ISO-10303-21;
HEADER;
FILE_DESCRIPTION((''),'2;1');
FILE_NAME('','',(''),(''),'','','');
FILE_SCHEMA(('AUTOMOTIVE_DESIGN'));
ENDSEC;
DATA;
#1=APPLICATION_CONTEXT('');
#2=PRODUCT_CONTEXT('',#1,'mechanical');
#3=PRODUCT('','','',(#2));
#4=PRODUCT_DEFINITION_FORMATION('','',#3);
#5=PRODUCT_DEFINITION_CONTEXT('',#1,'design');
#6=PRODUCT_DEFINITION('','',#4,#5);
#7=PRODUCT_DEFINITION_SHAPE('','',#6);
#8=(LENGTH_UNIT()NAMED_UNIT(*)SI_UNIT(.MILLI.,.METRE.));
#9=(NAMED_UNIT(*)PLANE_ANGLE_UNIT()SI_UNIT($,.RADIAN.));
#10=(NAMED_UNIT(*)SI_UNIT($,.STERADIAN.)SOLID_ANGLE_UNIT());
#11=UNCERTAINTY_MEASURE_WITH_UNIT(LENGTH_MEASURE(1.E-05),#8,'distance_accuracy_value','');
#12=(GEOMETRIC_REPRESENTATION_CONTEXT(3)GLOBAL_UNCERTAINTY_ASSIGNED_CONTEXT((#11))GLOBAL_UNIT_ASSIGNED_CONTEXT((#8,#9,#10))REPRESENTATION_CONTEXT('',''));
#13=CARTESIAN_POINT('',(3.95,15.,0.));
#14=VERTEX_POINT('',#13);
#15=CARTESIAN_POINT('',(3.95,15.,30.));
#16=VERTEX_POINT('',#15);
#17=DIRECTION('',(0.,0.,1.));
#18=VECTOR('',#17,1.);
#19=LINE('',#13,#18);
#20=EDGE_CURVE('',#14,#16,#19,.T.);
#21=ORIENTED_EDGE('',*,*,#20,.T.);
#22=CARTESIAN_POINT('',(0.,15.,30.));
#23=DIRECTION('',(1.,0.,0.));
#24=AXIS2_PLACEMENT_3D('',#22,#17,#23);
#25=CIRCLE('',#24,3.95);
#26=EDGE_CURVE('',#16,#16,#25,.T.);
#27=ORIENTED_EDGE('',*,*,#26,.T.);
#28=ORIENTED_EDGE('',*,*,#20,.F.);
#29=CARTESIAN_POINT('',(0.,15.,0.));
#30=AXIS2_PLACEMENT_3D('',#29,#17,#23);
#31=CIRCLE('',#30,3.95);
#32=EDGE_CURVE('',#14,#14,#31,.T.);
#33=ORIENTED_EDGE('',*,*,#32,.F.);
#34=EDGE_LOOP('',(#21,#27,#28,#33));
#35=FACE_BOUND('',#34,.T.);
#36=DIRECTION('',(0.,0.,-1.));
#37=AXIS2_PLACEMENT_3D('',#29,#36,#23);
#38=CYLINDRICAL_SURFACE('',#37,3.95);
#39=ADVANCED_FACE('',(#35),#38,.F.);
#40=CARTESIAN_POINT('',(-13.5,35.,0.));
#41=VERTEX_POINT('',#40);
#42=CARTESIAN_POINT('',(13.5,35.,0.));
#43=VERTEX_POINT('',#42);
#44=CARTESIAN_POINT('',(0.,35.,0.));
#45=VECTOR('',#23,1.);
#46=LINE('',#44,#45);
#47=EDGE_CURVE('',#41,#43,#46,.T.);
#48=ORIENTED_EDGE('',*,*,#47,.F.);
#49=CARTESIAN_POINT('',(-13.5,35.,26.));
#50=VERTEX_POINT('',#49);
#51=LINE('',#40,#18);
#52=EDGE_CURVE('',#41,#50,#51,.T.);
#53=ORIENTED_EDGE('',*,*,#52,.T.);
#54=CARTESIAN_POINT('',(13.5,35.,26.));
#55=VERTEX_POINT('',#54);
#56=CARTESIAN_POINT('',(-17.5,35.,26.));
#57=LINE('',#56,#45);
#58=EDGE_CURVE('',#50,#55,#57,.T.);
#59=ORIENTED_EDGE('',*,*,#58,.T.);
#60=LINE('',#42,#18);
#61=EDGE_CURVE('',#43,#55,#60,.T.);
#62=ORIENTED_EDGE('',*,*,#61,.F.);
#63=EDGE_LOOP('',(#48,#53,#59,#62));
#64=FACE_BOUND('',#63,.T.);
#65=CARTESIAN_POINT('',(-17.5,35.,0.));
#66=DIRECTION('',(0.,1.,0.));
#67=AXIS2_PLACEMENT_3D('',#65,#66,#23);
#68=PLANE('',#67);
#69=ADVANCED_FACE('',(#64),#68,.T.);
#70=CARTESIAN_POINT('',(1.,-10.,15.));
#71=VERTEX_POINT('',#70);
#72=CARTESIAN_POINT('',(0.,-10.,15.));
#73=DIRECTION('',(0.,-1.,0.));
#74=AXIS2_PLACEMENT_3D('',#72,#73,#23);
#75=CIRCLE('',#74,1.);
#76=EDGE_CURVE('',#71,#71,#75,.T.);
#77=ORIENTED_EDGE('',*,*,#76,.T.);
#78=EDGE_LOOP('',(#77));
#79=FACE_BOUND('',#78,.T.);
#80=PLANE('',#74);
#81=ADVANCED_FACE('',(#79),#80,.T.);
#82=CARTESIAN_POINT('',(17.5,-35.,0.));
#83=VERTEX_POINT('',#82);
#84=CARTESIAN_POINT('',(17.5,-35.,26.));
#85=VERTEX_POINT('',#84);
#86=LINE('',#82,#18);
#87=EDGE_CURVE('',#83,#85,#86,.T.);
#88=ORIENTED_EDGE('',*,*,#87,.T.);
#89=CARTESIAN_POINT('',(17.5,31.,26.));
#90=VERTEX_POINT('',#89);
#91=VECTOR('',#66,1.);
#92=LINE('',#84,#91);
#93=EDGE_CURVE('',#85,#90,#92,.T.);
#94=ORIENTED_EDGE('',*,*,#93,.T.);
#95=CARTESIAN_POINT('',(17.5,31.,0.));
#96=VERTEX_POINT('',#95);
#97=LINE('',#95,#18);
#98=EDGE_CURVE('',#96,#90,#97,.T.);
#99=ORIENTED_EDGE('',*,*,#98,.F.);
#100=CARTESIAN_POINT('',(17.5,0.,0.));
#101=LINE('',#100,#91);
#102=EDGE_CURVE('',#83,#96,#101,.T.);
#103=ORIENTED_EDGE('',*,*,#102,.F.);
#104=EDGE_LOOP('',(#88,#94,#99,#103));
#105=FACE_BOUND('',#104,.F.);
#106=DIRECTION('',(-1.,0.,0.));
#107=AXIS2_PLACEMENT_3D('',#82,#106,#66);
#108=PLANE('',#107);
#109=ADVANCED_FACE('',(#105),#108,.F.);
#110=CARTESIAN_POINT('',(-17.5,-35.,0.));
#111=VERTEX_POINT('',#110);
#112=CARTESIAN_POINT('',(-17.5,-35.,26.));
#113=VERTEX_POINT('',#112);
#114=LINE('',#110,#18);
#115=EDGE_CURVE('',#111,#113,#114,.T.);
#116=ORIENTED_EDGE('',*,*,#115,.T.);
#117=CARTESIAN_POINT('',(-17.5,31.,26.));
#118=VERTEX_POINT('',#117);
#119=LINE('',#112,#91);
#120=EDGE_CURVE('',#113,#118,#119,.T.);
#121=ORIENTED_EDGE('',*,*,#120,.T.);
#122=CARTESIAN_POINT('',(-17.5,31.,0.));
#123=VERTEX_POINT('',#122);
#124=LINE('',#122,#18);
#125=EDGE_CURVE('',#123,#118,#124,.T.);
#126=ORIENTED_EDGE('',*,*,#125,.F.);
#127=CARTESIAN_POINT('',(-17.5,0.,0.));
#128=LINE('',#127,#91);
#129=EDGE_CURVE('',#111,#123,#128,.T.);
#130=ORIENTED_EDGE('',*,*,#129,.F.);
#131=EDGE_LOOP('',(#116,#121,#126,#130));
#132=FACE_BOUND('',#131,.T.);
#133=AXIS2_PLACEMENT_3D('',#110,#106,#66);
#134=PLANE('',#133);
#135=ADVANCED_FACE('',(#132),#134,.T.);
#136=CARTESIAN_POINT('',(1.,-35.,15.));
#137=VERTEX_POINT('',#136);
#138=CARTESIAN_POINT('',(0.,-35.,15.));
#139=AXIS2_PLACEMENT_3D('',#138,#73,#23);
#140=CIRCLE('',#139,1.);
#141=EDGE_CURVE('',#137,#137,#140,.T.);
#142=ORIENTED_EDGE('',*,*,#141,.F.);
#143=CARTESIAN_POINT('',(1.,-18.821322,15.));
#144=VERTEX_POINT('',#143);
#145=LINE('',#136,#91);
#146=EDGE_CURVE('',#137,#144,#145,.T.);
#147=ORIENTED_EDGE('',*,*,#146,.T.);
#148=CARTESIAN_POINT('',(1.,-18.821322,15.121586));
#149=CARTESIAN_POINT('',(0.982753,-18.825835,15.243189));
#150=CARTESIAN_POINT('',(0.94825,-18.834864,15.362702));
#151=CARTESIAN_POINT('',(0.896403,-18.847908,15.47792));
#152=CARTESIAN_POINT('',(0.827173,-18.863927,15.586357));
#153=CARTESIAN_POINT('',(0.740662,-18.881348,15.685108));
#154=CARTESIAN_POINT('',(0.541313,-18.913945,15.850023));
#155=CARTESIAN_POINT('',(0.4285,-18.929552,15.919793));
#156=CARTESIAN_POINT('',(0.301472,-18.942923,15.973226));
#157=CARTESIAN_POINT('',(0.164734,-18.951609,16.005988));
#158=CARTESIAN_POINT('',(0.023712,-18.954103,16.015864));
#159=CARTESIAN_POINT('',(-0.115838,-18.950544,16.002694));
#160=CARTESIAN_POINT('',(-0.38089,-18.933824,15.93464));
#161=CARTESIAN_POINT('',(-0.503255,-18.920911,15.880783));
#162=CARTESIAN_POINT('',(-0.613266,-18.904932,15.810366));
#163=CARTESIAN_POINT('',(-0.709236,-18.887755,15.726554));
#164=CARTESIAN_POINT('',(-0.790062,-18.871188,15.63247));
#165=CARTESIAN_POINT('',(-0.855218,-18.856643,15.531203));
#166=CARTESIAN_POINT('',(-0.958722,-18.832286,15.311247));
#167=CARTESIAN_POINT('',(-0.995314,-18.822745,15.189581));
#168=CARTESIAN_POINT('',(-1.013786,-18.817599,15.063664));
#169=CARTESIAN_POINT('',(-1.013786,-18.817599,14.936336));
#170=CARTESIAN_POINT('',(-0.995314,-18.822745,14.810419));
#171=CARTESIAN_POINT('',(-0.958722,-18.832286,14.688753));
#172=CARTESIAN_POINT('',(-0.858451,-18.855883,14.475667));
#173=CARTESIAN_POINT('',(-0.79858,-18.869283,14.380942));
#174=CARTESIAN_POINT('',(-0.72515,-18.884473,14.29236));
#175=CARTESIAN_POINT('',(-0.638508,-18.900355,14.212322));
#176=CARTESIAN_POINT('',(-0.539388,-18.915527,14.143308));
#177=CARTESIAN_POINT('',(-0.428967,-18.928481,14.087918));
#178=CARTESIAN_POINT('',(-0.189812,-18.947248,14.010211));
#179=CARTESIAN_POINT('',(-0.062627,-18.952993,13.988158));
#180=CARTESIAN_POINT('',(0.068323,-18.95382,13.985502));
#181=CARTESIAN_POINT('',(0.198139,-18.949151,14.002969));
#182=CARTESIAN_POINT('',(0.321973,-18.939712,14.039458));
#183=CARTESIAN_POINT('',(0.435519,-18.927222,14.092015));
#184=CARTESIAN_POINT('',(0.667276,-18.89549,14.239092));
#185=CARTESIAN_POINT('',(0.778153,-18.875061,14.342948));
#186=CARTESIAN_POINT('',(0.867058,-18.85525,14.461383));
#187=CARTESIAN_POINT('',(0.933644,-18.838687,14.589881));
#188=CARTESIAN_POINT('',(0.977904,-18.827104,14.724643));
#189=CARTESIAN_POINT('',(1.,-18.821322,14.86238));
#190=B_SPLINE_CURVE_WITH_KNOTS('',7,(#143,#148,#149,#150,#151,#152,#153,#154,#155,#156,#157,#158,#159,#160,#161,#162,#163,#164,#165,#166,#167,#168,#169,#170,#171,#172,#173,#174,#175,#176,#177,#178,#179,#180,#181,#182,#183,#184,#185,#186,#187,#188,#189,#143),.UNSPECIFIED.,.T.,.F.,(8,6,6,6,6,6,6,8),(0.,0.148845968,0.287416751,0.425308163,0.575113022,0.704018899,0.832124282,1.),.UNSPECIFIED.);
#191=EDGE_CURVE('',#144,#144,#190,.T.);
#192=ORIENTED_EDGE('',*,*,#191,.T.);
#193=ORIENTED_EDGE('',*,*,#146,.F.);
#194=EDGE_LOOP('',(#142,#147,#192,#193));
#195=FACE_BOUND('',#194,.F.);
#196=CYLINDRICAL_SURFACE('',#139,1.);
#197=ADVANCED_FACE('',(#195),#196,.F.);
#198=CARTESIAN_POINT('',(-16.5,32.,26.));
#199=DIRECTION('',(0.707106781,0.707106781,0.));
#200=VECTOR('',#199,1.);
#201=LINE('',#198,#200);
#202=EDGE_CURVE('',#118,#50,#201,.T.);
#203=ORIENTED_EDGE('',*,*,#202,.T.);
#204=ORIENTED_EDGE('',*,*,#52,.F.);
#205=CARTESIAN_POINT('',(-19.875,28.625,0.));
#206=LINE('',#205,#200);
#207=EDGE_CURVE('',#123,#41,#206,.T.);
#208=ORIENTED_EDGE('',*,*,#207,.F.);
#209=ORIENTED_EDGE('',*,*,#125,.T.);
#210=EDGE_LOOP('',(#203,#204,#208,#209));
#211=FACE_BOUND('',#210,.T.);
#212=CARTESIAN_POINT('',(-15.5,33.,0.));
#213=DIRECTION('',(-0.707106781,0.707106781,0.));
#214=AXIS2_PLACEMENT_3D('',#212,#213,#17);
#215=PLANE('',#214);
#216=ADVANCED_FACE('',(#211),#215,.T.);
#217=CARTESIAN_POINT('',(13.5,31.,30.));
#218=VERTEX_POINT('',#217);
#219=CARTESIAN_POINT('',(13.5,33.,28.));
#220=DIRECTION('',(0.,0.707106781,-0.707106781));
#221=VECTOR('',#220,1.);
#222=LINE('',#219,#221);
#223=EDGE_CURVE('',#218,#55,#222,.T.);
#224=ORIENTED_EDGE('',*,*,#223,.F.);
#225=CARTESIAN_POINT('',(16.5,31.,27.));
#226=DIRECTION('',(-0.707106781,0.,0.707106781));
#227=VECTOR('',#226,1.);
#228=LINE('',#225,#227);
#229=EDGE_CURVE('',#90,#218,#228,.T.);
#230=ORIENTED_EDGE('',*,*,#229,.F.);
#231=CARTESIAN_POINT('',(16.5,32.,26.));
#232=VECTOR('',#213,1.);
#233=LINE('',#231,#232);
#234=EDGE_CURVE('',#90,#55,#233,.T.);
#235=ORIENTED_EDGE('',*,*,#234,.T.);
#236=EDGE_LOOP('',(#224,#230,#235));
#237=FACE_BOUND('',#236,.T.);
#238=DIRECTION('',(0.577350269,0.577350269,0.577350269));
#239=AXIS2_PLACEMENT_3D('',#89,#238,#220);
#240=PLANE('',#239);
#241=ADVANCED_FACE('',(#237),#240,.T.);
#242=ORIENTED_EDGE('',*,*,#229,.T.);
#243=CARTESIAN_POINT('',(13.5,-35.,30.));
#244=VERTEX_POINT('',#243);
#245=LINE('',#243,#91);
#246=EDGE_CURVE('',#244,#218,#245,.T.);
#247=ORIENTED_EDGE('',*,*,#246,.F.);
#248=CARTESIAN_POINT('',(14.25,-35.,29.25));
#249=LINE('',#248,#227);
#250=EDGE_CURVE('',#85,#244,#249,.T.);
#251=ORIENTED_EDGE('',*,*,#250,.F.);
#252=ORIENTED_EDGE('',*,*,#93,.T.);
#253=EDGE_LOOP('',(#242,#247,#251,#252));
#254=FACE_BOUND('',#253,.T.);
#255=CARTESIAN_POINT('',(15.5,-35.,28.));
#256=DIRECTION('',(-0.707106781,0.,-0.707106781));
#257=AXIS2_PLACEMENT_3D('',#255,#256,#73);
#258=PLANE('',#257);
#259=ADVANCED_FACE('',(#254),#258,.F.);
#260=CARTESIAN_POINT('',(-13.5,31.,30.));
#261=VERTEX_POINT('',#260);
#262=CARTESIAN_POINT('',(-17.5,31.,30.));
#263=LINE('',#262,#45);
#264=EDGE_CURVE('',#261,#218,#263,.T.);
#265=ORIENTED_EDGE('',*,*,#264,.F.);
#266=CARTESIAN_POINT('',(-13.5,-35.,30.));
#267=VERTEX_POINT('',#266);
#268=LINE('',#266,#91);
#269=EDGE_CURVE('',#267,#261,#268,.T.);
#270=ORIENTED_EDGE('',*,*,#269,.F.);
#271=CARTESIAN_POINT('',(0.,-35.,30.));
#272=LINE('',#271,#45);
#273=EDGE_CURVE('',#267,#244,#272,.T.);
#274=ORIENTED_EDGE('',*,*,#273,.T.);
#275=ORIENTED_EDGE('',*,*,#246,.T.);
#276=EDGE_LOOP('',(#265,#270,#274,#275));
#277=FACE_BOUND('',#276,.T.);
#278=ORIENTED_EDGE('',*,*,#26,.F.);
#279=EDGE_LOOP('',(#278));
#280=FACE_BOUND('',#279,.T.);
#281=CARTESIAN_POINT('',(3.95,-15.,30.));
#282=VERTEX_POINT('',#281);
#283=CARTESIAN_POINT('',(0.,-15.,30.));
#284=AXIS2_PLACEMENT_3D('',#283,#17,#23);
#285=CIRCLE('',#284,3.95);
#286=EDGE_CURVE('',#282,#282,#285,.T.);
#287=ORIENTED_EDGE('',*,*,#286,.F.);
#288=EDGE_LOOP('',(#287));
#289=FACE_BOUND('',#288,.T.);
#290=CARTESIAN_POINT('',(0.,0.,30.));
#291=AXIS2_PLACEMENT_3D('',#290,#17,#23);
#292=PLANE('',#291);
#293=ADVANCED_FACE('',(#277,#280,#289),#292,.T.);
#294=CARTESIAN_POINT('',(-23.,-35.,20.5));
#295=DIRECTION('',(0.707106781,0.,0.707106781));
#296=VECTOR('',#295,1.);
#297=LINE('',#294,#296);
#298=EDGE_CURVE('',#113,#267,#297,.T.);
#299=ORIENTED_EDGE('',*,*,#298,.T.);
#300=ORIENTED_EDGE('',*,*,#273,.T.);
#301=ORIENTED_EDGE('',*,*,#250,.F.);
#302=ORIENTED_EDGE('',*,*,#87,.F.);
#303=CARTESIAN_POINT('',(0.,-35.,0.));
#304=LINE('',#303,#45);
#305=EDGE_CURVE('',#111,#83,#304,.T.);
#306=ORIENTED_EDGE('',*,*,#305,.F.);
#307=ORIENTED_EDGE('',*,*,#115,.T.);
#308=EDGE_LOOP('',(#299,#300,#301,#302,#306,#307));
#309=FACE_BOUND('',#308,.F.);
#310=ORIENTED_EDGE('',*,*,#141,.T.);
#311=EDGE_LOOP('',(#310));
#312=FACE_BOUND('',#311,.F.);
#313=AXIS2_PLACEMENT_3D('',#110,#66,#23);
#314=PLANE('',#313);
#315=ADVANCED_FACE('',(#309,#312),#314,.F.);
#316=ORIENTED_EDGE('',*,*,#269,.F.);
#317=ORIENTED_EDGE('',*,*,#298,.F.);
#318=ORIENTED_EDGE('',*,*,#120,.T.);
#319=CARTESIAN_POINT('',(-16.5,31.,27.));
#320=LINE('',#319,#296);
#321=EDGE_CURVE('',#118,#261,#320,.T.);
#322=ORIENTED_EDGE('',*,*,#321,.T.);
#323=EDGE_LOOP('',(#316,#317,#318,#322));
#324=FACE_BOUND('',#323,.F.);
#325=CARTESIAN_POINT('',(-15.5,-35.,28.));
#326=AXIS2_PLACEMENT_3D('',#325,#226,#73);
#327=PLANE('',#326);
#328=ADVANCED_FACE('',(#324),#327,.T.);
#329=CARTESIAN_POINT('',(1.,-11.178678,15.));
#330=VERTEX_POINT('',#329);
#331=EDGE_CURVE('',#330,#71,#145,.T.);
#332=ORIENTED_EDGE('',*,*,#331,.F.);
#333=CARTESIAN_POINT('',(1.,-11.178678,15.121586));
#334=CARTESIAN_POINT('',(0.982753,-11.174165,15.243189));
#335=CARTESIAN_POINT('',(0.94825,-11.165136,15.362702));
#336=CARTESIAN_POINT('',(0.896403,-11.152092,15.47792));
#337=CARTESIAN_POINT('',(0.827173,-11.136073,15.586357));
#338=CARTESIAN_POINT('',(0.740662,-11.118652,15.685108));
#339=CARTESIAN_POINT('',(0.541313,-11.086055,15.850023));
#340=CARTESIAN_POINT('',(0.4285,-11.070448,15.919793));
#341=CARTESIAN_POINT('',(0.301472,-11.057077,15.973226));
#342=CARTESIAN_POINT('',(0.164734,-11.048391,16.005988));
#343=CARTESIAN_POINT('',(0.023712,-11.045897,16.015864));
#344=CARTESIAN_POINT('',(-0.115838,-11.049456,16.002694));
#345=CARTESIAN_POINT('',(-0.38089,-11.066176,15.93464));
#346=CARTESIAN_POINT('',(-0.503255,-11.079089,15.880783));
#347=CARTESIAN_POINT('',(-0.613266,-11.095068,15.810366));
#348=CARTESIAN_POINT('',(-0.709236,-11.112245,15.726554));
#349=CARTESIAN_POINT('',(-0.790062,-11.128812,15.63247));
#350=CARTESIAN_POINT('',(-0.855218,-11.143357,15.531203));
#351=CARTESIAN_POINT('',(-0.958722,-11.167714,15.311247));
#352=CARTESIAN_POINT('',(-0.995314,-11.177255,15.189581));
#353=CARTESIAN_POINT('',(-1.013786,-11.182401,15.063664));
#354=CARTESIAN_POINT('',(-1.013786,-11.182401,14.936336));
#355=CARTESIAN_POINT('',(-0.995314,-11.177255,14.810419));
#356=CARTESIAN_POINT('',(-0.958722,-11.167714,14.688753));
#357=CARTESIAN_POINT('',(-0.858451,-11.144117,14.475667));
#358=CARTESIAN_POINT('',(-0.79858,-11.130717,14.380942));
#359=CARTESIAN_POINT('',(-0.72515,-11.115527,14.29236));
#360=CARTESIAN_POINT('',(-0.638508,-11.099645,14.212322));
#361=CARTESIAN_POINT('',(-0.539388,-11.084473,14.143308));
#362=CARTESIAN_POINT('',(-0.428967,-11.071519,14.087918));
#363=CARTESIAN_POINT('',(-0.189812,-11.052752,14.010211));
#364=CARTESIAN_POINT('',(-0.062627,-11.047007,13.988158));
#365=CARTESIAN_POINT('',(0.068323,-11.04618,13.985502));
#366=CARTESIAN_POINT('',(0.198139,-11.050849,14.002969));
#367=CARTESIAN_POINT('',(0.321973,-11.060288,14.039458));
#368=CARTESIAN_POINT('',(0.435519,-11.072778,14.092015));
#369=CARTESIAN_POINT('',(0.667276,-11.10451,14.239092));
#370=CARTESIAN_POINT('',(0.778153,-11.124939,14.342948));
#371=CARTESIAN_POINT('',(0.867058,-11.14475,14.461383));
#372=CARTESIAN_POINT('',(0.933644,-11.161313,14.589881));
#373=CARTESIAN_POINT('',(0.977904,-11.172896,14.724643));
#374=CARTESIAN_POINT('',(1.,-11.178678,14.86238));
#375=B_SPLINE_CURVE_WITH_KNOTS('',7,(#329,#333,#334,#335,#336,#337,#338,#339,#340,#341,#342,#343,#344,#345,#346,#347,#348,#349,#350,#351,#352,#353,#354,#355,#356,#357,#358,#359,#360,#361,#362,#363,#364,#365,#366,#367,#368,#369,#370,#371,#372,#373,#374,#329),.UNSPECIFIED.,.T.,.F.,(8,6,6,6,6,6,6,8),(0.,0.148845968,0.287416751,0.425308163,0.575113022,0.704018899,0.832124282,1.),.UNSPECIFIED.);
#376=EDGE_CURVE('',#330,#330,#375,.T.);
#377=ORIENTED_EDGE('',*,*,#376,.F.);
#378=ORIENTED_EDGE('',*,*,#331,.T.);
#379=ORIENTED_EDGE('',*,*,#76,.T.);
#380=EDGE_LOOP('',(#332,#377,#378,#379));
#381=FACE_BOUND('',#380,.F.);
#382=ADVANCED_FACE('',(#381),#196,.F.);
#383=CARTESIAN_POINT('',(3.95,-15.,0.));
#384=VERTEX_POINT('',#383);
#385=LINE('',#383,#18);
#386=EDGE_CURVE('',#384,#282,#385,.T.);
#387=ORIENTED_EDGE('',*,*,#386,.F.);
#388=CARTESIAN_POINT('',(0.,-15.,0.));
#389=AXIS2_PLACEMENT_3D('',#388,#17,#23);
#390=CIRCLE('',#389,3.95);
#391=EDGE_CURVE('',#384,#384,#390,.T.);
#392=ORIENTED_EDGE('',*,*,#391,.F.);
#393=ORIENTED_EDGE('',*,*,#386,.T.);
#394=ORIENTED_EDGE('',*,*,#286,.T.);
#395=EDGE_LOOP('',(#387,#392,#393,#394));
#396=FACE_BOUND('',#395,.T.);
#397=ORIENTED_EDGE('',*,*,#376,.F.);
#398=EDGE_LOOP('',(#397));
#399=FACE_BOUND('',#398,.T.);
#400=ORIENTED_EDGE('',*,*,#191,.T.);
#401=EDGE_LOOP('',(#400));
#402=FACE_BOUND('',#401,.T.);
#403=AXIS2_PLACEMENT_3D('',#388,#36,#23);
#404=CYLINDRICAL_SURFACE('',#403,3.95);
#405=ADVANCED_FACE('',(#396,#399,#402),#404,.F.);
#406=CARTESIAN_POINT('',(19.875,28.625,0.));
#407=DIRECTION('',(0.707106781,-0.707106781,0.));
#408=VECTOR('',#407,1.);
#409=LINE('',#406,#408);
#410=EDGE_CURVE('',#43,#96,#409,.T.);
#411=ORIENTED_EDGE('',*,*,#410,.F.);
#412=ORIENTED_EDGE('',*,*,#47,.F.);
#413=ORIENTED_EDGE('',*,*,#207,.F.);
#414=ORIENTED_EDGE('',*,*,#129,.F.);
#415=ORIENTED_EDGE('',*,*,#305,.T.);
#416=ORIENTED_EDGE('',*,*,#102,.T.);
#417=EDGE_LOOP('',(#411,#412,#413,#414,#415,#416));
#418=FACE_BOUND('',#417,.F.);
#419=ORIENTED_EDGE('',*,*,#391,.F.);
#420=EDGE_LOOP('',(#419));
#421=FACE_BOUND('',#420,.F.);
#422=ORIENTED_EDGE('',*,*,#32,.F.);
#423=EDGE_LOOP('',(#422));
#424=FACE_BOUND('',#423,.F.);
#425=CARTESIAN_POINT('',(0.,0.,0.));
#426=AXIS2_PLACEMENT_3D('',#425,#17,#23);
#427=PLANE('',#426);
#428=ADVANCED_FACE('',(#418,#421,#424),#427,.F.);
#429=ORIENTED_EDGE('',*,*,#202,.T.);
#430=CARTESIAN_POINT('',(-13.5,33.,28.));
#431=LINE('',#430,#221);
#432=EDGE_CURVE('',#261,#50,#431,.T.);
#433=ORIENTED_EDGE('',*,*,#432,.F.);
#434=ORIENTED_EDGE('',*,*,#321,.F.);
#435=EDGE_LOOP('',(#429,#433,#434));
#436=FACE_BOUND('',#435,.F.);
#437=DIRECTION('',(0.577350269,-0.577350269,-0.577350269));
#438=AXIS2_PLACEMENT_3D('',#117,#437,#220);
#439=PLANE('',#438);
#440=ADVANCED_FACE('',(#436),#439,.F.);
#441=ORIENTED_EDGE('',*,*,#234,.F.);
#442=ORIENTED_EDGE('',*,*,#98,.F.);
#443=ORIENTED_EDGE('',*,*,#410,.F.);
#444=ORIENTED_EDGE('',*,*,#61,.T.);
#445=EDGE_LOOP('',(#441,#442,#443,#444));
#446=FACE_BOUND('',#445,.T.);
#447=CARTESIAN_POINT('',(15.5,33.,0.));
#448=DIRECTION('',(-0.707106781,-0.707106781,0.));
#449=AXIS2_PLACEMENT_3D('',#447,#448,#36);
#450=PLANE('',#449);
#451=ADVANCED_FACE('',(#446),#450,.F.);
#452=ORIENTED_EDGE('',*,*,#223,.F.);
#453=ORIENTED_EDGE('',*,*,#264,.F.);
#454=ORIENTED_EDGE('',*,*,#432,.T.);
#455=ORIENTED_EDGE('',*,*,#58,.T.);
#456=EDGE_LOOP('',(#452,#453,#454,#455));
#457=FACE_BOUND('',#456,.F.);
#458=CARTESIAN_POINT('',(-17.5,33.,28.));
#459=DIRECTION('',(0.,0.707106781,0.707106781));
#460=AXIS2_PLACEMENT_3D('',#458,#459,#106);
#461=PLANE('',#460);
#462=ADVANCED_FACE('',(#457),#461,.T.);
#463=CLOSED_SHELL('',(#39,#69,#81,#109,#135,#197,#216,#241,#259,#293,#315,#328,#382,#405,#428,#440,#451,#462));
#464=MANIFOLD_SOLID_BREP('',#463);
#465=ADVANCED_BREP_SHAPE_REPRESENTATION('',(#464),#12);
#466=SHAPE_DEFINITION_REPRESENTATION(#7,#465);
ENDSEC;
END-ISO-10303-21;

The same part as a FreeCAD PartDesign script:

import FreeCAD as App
import Part
import Sketcher

V = App.Vector
Q = App.Units.Quantity


def edges_at(feature, points):
    """Names of the edges that pass closest to the given points."""
    edges = feature.Shape.Edges
    near = lambda p: min(range(len(edges)), key=lambda i: edges[i].distToShape(Part.Vertex(*p))[0])
    return sorted({f"Edge{near(p) + 1}" for p in points})

doc = App.newDocument("Part")
body = doc.addObject("PartDesign::Body", "Body")

sketch1 = body.newObject("Sketcher::SketchObject", "Sketch")
sketch1.AttachmentSupport = (doc.getObject("XY_Plane"), [""])
sketch1.MapMode = "FlatFace"
sketch1.addGeometry([
    Part.LineSegment(V(-17.5, 35, 0), V(-17.5, -35, 0)),
    Part.LineSegment(V(-17.5, -35, 0), V(17.5, -35, 0)),
    Part.LineSegment(V(17.5, -35, 0), V(17.5, 35, 0)),
    Part.LineSegment(V(17.5, 35, 0), V(-17.5, 35, 0)),
    Part.Circle(V(0, -15, 0), V(0, 0, 1), 4),
    Part.Circle(V(0, 15, 0), V(0, 0, 1), 4),
], False)
sketch1.addConstraint([
    Sketcher.Constraint("Coincident", 0, 2, 1, 1),
    Sketcher.Constraint("Coincident", 1, 2, 2, 1),
    Sketcher.Constraint("Coincident", 2, 2, 3, 1),
    Sketcher.Constraint("Coincident", 3, 2, 0, 1),
    Sketcher.Constraint("Vertical", 0),
    Sketcher.Constraint("Horizontal", 1),
    Sketcher.Constraint("Vertical", 2),
    Sketcher.Constraint("Horizontal", 3),
    Sketcher.Constraint("Equal", 4, 5),
    Sketcher.Constraint("Symmetric", 4, 3, 5, 3, -1, 1),
    Sketcher.Constraint("Symmetric", 0, 2, 2, 2, -1, 1),
    Sketcher.Constraint("PointOnObject", 4, 3, -2),
    Sketcher.Constraint("Diameter", 4, Q("7.9 mm")),
    Sketcher.Constraint("DistanceX", 1, 1, 1, 2, Q("35 mm")),
    Sketcher.Constraint("DistanceY", 0, 2, 0, 1, Q("70 mm")),
    Sketcher.Constraint("DistanceY", 4, 3, -1, 1, Q("15 mm")),
])
pad1 = body.newObject("PartDesign::Pad", "Pad")
pad1.Profile = sketch1
pad1.Length = 30
doc.recompute()

chamfer = body.newObject("PartDesign::Chamfer", "Chamfer")
chamfer.Base = (pad1, edges_at(pad1, [
    (0, 35, 30),
    (17.5, 0, 30),
    (-17.5, 0, 30),
    (17.5, 35, 15),
    (-17.5, 35, 15),
]))
chamfer.Size = 4

sketch2 = body.newObject("Sketcher::SketchObject", "Sketch001")
sketch2.AttachmentSupport = (doc.getObject("XZ_Plane"), [""])
sketch2.MapMode = "FlatFace"
sketch2.AttachmentOffset = App.Placement(V(0, 0, 35), App.Rotation())
sketch2.addGeometry(Part.Circle(V(0, 15, 0), V(0, 0, 1), 1), False)
sketch2.addConstraint([
    Sketcher.Constraint("PointOnObject", 0, 3, -2),
    Sketcher.Constraint("Diameter", 0, Q("2 mm")),
    Sketcher.Constraint("DistanceY", -1, 1, 0, 3, Q("15 mm")),
])
pocket1 = body.newObject("PartDesign::Pocket", "Pocket")
pocket1.Profile = sketch2
pocket1.Length = 25

doc.recompute()
